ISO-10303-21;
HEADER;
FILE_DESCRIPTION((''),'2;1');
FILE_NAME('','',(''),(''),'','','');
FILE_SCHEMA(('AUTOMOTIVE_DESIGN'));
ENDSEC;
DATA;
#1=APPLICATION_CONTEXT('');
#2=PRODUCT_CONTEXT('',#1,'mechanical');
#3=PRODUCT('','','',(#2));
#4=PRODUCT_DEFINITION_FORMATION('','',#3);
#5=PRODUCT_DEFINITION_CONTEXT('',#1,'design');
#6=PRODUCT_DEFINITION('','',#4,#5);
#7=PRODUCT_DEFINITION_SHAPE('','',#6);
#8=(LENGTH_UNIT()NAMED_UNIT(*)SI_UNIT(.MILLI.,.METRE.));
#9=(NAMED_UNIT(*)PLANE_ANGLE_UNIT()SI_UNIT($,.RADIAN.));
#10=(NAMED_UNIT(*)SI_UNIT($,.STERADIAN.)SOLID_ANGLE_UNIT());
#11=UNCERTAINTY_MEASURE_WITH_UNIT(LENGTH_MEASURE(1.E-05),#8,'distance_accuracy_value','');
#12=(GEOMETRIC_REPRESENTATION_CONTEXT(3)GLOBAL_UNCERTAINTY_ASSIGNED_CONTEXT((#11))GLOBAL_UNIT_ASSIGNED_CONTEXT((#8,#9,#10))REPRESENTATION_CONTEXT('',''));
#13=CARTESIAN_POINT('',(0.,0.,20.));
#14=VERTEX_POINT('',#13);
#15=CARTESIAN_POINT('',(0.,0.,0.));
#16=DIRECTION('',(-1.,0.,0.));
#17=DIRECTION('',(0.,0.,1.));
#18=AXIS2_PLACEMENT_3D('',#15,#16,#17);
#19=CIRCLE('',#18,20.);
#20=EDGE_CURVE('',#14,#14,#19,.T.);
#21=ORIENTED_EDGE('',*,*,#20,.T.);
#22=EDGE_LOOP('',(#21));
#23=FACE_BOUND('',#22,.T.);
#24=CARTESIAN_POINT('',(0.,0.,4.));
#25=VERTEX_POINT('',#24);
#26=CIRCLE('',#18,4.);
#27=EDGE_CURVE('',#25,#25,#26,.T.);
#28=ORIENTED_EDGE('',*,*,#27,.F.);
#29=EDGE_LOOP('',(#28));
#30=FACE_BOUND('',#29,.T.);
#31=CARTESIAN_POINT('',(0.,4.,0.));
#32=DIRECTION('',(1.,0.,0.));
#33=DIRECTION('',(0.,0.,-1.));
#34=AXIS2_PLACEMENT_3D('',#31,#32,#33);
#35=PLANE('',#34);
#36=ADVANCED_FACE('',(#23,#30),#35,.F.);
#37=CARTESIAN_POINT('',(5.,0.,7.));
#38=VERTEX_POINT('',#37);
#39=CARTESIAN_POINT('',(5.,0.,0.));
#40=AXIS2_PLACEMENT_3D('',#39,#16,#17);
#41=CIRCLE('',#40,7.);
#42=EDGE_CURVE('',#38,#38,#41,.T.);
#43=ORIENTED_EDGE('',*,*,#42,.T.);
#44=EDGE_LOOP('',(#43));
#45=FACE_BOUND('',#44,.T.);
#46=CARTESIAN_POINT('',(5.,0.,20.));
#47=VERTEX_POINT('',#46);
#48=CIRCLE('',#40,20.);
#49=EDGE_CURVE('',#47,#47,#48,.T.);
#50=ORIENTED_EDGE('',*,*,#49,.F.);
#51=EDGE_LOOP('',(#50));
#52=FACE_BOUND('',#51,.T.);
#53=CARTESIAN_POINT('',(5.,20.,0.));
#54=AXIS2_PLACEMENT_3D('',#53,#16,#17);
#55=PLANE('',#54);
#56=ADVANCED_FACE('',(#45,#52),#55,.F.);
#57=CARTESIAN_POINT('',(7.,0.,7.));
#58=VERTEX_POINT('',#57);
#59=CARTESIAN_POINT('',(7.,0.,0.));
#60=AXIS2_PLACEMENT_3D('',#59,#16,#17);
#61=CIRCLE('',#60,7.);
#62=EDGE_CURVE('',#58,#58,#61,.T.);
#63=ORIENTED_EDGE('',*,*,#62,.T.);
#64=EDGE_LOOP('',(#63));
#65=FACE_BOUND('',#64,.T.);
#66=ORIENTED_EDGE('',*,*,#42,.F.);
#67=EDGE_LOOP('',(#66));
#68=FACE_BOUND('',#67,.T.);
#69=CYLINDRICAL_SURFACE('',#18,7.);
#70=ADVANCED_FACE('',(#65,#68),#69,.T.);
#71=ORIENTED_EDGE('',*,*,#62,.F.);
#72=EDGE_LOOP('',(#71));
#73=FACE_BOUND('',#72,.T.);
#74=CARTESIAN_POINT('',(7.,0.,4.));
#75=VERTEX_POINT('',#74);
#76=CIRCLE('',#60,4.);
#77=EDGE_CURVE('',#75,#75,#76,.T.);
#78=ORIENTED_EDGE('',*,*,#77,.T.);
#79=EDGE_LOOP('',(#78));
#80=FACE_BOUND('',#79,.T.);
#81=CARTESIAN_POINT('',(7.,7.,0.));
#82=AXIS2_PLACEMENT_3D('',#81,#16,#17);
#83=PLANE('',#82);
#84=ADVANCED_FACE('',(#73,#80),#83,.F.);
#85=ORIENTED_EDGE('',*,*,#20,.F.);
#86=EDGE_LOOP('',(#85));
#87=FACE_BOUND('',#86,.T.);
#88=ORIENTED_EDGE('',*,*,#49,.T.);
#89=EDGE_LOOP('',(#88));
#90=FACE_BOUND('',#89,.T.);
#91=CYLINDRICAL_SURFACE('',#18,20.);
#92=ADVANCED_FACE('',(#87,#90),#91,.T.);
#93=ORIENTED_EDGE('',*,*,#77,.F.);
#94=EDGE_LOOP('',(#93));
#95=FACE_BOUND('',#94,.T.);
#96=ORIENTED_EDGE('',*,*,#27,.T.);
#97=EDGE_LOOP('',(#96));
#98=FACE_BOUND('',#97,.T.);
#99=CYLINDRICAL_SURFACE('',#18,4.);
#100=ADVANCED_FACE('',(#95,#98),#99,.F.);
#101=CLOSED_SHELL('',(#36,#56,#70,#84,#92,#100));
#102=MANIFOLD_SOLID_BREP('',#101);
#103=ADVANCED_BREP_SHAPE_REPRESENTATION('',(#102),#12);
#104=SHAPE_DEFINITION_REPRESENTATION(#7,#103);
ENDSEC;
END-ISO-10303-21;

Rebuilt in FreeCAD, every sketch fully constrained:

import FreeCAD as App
import Part
import Sketcher


def add_polygon(sketch, points):
    """Adds a closed chain of lines whose ends are joined by coincident constraints."""
    first, n = sketch.GeometryCount, len(points)
    for a, b in zip(points, points[1:] + points[:1]):
        sketch.addGeometry(Part.LineSegment(App.Vector(*a, 0), App.Vector(*b, 0)), False)
    for i in range(n):
        sketch.addConstraint(Sketcher.Constraint("Coincident", first + i, 2, first + (i + 1) % n, 1))

doc = App.newDocument("Part")
body = doc.addObject("PartDesign::Body", "Body")

# Sketch on XY plane
sketch1 = body.newObject("Sketcher::SketchObject", "Sketch")
sketch1.AttachmentSupport = (doc.getObject("XY_Plane"), [""])
sketch1.MapMode = "FlatFace"
add_polygon(sketch1, [(0, 20), (0, 4), (7, 4), (7, 7), (5, 7), (5, 20)])  # lines 0-5
sketch1.addConstraint(Sketcher.Constraint("Vertical", 0))
sketch1.addConstraint(Sketcher.Constraint("Horizontal", 1))
sketch1.addConstraint(Sketcher.Constraint("Vertical", 2))
sketch1.addConstraint(Sketcher.Constraint("Horizontal", 3))
sketch1.addConstraint(Sketcher.Constraint("Vertical", 4))
sketch1.addConstraint(Sketcher.Constraint("Horizontal", 5))
sketch1.addConstraint(Sketcher.Constraint("PointOnObject", 0, 2, -2))
sketch1.addConstraint(Sketcher.Constraint("DistanceX", 1, 1, 1, 2, 7.0))
sketch1.addConstraint(Sketcher.Constraint("DistanceX", 3, 2, 3, 1, 2.0))
sketch1.addConstraint(Sketcher.Constraint("DistanceY", 0, 2, 0, 1, 16.0))
sketch1.addConstraint(Sketcher.Constraint("DistanceY", 2, 1, 2, 2, 3.0))
sketch1.addConstraint(Sketcher.Constraint("DistanceY", -1, 1, 0, 2, 4.0))
revolution = body.newObject("PartDesign::Revolution", "Revolution")
revolution.Profile = sketch1
revolution.ReferenceAxis = (sketch1, ["H_Axis"])
revolution.Angle = 360

doc.recompute()
